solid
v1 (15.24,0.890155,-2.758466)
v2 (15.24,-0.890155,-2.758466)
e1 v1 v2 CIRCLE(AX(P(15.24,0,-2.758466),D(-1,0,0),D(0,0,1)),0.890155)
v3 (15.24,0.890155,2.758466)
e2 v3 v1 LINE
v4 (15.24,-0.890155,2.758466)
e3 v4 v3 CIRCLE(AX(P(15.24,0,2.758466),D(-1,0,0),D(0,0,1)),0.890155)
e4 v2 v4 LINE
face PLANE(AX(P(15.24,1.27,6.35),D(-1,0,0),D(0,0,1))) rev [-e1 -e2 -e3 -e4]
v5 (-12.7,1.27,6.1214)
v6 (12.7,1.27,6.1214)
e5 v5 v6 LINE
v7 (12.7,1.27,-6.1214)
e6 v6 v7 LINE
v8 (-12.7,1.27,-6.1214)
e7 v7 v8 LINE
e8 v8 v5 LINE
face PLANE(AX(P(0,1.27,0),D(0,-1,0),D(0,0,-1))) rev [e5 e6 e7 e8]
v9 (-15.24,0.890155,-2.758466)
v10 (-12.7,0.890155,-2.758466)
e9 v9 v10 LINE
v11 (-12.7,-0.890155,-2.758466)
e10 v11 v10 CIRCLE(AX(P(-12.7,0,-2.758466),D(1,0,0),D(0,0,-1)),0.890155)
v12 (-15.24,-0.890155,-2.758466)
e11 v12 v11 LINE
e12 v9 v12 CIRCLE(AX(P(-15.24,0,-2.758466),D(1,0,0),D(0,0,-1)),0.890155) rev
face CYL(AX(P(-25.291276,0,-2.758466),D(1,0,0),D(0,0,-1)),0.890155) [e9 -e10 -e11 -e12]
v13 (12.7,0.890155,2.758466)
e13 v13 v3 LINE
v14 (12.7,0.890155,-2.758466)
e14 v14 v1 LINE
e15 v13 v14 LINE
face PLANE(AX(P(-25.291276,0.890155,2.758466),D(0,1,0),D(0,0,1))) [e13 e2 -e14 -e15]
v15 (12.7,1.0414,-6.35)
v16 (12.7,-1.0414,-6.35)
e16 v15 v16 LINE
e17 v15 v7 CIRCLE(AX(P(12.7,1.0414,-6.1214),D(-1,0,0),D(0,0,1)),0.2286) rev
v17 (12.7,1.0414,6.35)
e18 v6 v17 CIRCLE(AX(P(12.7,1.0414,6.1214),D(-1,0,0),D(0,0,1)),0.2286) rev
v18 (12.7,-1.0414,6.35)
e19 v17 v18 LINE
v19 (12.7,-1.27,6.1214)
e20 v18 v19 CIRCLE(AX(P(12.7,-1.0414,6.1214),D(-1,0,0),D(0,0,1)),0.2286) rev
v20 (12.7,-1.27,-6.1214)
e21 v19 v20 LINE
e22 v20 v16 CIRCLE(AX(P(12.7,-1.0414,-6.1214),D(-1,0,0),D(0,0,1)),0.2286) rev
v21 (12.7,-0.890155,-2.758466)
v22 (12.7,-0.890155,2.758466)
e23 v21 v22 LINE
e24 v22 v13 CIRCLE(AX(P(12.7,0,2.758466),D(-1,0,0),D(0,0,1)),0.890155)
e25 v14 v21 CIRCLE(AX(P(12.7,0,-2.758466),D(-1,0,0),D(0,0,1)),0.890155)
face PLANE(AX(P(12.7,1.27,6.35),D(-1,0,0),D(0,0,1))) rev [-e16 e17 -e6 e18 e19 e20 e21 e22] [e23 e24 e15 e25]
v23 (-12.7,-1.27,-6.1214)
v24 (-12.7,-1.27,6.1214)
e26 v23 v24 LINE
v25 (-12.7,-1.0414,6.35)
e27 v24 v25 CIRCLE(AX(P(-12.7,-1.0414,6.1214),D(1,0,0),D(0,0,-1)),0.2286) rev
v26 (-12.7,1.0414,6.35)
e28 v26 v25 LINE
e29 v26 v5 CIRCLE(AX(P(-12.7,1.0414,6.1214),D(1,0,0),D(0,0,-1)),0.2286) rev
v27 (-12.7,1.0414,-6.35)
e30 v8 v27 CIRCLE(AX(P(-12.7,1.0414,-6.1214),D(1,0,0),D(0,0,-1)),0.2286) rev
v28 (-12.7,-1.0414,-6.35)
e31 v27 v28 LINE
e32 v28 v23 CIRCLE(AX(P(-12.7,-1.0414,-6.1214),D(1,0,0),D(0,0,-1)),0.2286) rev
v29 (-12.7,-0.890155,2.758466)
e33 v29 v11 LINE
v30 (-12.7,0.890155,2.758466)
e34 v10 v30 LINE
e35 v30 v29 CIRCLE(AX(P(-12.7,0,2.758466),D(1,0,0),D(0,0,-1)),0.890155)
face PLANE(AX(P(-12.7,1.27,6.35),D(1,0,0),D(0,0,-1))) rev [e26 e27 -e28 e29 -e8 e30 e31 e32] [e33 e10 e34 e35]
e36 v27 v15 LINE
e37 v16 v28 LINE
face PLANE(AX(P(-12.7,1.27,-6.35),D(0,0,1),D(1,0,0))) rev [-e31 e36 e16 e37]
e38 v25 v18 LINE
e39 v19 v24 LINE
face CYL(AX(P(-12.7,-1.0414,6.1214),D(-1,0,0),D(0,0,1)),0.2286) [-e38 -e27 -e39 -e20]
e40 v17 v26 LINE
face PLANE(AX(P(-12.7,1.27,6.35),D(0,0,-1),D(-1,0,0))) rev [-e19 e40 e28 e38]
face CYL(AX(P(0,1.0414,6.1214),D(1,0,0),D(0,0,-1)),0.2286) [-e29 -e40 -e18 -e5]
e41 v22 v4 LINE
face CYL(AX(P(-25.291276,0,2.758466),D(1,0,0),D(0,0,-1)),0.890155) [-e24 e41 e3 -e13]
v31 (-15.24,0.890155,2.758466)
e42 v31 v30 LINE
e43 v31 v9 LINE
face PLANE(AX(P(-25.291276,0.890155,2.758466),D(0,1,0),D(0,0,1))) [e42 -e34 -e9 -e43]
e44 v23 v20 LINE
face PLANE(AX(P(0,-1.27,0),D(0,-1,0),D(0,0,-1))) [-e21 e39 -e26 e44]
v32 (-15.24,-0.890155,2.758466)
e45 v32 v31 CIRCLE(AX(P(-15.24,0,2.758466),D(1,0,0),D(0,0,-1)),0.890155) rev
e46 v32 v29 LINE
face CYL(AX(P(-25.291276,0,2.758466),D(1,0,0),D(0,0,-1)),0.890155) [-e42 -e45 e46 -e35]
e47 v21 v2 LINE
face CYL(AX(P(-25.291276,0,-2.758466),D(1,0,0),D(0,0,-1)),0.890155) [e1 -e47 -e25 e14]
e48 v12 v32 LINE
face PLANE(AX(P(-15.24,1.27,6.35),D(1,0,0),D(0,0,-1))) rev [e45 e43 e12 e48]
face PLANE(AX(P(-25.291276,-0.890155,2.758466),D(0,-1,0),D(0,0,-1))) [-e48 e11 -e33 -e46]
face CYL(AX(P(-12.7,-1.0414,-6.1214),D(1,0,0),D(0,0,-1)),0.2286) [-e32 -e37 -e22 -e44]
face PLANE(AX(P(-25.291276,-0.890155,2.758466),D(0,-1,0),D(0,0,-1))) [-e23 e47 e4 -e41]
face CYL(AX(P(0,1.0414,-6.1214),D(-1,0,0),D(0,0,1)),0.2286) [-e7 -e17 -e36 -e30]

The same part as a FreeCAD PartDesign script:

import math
import FreeCAD as App
import Part
import Sketcher
from FreeCAD import Vector
Q = App.Units.Quantity


def edges_at(feature, points):
    """Names of the edges that pass closest to the given points."""
    edges = feature.Shape.Edges
    near = lambda p: min(range(len(edges)), key=lambda i: edges[i].distToShape(Part.Vertex(*p))[0])
    return sorted({f"Edge{near(p) + 1}" for p in points})

doc = App.newDocument("Part")
body = doc.addObject("PartDesign::Body", "Body")

# Sketch on XZ plane
sketch1 = doc.addObject("Sketcher::SketchObject", "Sketch")
body.addObject(sketch1)
sketch1.AttachmentSupport = (doc.XZ_Plane, [""])
sketch1.MapMode = "FlatFace"
sketch1.addGeometry([
    Part.LineSegment(Vector(-13, -6, 0), Vector(-13, 6, 0)),
    Part.LineSegment(Vector(-13, 6, 0), Vector(13, 6, 0)),
    Part.LineSegment(Vector(13, 6, 0), Vector(13, -6, 0)),
    Part.LineSegment(Vector(13, -6, 0), Vector(-13, -6, 0)),
], False)
sketch1.addConstraint([
    Sketcher.Constraint("Coincident", 0, 2, 1, 1),
    Sketcher.Constraint("Coincident", 1, 2, 2, 1),
    Sketcher.Constraint("Coincident", 2, 2, 3, 1),
    Sketcher.Constraint("Coincident", 3, 2, 0, 1),
    Sketcher.Constraint("Vertical", 0),
    Sketcher.Constraint("Horizontal", 1),
    Sketcher.Constraint("Vertical", 2),
    Sketcher.Constraint("Horizontal", 3),
    Sketcher.Constraint("Symmetric", 0, 2, 2, 2, -1, 1),
    Sketcher.Constraint("DistanceX", 1, 1, 1, 2, Q("1 in")),
    Sketcher.Constraint("DistanceY", 0, 1, 0, 2, Q("0.5 in")),
])
pad1 = doc.addObject("PartDesign::Pad", "Pad")
body.addObject(pad1)
pad1.Profile = sketch1
pad1.Length = Q("0.1 in")
pad1.Midplane = True
doc.recompute()

fillet = doc.addObject("PartDesign::Fillet", "Fillet")
body.addObject(fillet)
fillet.Base = (pad1, edges_at(pad1, [
    (0, 1.27, 6.35),
    (0, -1.27, 6.35),
    (0, -1.27, -6.35),
    (0, 1.27, -6.35),
]))
fillet.Radius = Q("0.009 in")

# Sketch on YZ plane
sketch2 = doc.addObject("Sketcher::SketchObject", "Sketch001")
body.addObject(sketch2)
sketch2.AttachmentSupport = (doc.YZ_Plane, [""])
sketch2.MapMode = "FlatFace"
sketch2.addGeometry([
    Part.LineSegment(Vector(0.9, -2.8, 0), Vector(0.9, 2.8, 0)),
    Part.ArcOfCircle(Part.Circle(Vector(0, 2.8, 0), Vector(0, 0, 1), 0.9), math.radians(0), math.radians(180)),
    Part.LineSegment(Vector(-0.9, 2.8, 0), Vector(-0.9, -2.8, 0)),
    Part.ArcOfCircle(Part.Circle(Vector(0, -2.8, 0), Vector(0, 0, 1), 0.9), math.radians(180), math.radians(360)),
], False)
sketch2.addConstraint([
    Sketcher.Constraint("Tangent", 0, 2, 1, 1),
    Sketcher.Constraint("Tangent", 1, 2, 2, 1),
    Sketcher.Constraint("Tangent", 2, 2, 3, 1),
    Sketcher.Constraint("Tangent", 3, 2, 0, 1),
    Sketcher.Constraint("Vertical", 0),
    Sketcher.Constraint("Vertical", 2),
    Sketcher.Constraint("Symmetric", 1, 3, 3, 3, -1, 1),
    Sketcher.Constraint("Radius", 1, Q("0.890155 mm")),
    Sketcher.Constraint("DistanceY", 0, 1, 0, 2, Q("5.516933 mm")),
])
pad2 = doc.addObject("PartDesign::Pad", "Pad001")
body.addObject(pad2)
pad2.Profile = sketch2
pad2.Type = "TwoLengths"
pad2.Length = Q("0.6 in")
pad2.Length2 = Q("0.6 in")

doc.recompute()
